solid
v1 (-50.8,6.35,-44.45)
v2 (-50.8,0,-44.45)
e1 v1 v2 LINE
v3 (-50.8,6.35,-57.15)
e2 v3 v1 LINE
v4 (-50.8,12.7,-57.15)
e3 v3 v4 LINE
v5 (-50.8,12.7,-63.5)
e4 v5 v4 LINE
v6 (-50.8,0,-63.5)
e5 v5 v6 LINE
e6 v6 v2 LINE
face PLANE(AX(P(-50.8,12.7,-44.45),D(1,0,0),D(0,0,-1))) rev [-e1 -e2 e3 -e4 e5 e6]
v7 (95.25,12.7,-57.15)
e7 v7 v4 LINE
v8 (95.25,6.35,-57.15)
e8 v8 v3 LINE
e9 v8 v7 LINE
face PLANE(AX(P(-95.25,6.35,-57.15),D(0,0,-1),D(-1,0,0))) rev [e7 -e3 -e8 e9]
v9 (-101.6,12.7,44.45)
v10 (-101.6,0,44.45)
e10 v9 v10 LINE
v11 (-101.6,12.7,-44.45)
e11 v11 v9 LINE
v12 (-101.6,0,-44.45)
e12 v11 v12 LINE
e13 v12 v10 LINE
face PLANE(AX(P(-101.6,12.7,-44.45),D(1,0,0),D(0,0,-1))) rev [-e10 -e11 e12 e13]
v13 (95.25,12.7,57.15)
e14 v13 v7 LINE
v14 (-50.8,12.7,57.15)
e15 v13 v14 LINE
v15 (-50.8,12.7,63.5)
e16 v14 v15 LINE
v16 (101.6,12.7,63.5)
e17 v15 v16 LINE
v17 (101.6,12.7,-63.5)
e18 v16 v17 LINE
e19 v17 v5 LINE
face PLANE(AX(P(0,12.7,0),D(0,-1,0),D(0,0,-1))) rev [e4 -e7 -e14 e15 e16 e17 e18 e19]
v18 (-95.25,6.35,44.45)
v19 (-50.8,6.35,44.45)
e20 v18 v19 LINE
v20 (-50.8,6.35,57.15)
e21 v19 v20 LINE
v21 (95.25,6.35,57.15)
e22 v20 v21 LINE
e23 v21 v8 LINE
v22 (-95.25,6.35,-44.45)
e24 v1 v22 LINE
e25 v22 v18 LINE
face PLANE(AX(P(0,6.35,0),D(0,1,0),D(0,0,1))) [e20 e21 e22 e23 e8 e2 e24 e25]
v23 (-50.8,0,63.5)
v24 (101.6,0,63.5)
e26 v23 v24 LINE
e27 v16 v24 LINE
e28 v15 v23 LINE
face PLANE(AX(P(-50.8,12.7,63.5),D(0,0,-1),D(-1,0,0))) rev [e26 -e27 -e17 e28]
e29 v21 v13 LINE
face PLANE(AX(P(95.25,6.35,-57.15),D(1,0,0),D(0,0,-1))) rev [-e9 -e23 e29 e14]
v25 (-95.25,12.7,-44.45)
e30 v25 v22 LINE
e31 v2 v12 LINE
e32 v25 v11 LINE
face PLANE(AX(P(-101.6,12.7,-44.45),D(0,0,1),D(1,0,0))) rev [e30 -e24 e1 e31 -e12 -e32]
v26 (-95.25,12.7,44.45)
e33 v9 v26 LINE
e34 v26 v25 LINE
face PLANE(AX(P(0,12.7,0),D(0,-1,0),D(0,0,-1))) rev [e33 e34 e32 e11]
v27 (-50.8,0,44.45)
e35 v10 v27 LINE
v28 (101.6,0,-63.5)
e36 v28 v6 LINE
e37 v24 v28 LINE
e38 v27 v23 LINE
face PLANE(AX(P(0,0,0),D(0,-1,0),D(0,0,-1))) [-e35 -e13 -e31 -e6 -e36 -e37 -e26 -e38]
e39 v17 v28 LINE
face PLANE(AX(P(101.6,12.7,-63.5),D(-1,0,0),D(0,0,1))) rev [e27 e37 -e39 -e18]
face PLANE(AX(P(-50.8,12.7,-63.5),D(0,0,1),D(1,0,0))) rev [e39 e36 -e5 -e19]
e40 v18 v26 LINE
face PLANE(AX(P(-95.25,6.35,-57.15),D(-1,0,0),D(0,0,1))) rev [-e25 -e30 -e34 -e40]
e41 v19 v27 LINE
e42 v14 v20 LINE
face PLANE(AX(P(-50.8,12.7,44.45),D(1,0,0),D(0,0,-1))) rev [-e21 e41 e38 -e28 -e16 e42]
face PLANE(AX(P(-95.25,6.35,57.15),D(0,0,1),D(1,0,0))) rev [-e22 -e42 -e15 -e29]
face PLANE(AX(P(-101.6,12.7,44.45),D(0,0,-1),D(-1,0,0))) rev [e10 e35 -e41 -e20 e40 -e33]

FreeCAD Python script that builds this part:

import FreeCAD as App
import Part
import Sketcher
Q = App.Units.Quantity


def add_polygon(sketch, points):
    """Adds a closed chain of lines whose ends are joined by coincident constraints."""
    first, n = sketch.GeometryCount, len(points)
    for a, b in zip(points, points[1:] + points[:1]):
        sketch.addGeometry(Part.LineSegment(App.Vector(*a, 0), App.Vector(*b, 0)), False)
    for i in range(n):
        sketch.addConstraint(Sketcher.Constraint("Coincident", first + i, 2, first + (i + 1) % n, 1))

doc = App.newDocument("Part")
body = doc.addObject("PartDesign::Body", "Body")

# Sketch on XZ plane
sketch1 = body.newObject("Sketcher::SketchObject", "Sketch")
sketch1.AttachmentSupport = (doc.getObject("XZ_Plane"), [""])
sketch1.MapMode = "FlatFace"
add_polygon(sketch1, [(-51, -44), (-102, -44), (-102, 44), (-51, 44), (-51, 64), (102, 64), (102, -64), (-51, -64)])  # lines 0-7
sketch1.addConstraint([
    Sketcher.Constraint("Horizontal", 0),
    Sketcher.Constraint("Vertical", 1),
    Sketcher.Constraint("Horizontal", 2),
    Sketcher.Constraint("Vertical", 3),
    Sketcher.Constraint("Horizontal", 4),
    Sketcher.Constraint("Vertical", 5),
    Sketcher.Constraint("Horizontal", 6),
    Sketcher.Constraint("Vertical", 7),
    Sketcher.Constraint("Symmetric", 3, 2, 6, 2, -1),
    Sketcher.Constraint("Equal", 3, 7),
    Sketcher.Constraint("DistanceX", 0, 2, 0, 1, Q("2 in")),
    Sketcher.Constraint("DistanceX", 4, 1, 4, 2, Q("6 in")),
    Sketcher.Constraint("DistanceY", 5, 2, 5, 1, Q("5 in")),
    Sketcher.Constraint("DistanceY", 1, 1, 1, 2, Q("3.5 in")),
    Sketcher.Constraint("DistanceX", 0, 2, -1, 1, Q("4 in")),
])
pad1 = body.newObject("PartDesign::Pad", "Pad")
pad1.Profile = sketch1
pad1.Length = Q("0.5 in")
pad1.Reversed = True

# Sketch on XZ plane
sketch2 = body.newObject("Sketcher::SketchObject", "Sketch001")
sketch2.AttachmentSupport = (doc.getObject("XZ_Plane"), [""])
sketch2.MapMode = "FlatFace"
sketch2.AttachmentOffset = App.Placement(App.Vector(0, 0, -0.5 * 25.4), App.Rotation())
add_polygon(sketch2, [(-95, -57), (-95, 57), (95, 57), (95, -57)])  # lines 0-3
sketch2.addConstraint([
    Sketcher.Constraint("Vertical", 0),
    Sketcher.Constraint("Horizontal", 1),
    Sketcher.Constraint("Vertical", 2),
    Sketcher.Constraint("Horizontal", 3),
    Sketcher.Constraint("Symmetric", 0, 2, 2, 2, -1, 1),
    Sketcher.Constraint("DistanceX", 1, 1, 1, 2, Q("7.5 in")),
    Sketcher.Constraint("DistanceY", 0, 1, 0, 2, Q("4.5 in")),
])
pocket1 = body.newObject("PartDesign::Pocket", "Pocket")
pocket1.Profile = sketch2
pocket1.Length = Q("0.25 in")
pocket1.Reversed = True

doc.recompute()
